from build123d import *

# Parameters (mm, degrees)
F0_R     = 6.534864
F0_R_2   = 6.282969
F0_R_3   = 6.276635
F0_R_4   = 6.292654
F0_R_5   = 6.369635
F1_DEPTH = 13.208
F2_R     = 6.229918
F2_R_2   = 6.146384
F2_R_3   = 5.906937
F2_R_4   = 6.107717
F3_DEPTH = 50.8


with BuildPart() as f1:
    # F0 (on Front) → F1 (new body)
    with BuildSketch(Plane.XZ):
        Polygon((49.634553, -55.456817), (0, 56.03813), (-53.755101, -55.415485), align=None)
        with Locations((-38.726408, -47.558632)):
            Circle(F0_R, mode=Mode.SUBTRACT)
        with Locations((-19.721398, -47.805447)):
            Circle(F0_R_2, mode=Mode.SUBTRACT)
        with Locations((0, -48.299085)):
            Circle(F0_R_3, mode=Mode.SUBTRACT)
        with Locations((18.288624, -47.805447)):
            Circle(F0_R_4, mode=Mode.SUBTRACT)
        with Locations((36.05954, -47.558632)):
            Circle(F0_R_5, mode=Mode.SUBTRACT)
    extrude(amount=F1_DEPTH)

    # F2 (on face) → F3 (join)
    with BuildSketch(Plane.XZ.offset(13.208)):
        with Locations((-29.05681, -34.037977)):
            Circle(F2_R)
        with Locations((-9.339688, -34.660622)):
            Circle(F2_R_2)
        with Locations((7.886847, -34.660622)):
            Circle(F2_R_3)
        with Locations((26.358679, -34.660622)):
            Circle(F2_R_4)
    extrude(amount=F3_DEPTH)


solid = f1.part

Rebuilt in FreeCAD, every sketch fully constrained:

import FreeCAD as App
import Part
import Sketcher
Q = App.Units.Quantity


def add_polygon(sketch, points):
    """Adds a closed chain of lines whose ends are joined by coincident constraints."""
    first, n = sketch.GeometryCount, len(points)
    for a, b in zip(points, points[1:] + points[:1]):
        sketch.addGeometry(Part.LineSegment(App.Vector(*a, 0), App.Vector(*b, 0)), False)
    for i in range(n):
        sketch.addConstraint(Sketcher.Constraint("Coincident", first + i, 2, first + (i + 1) % n, 1))

doc = App.newDocument("Part")
body = doc.addObject("PartDesign::Body", "Body")

# Sketch on XZ plane
sketch1 = body.newObject("Sketcher::SketchObject", "Sketch")
sketch1.AttachmentSupport = (doc.getObject("XZ_Plane"), [""])
sketch1.MapMode = "FlatFace"
add_polygon(sketch1, [(50, -55), (0, 56), (-54, -55)])  # lines 0-2
sketch1.addGeometry(Part.Circle(App.Vector(-20, -48, 0), App.Vector(0, 0, 1), 6), False)  # 3
sketch1.addGeometry(Part.Circle(App.Vector(0, -48, 0), App.Vector(0, 0, 1), 6), False)  # 4
sketch1.addGeometry(Part.Circle(App.Vector(18, -48, 0), App.Vector(0, 0, 1), 6), False)  # 5
sketch1.addGeometry(Part.Circle(App.Vector(-39, -48, 0), App.Vector(0, 0, 1), 7), False)  # 6
sketch1.addGeometry(Part.Circle(App.Vector(36, -48, 0), App.Vector(0, 0, 1), 6), False)  # 7
sketch1.addConstraint(Sketcher.Constraint("PointOnObject", 4, 3, -2))
sketch1.addConstraint(Sketcher.Constraint("PointOnObject", 0, 2, -2))
sketch1.addConstraint(Sketcher.Constraint("Horizontal", 3, 3, 5, 3))
sketch1.addConstraint(Sketcher.Constraint("Horizontal", 6, 3, 7, 3))
sketch1.addConstraint(Sketcher.Constraint("Diameter", 4, 12.55327))
sketch1.addConstraint(Sketcher.Constraint("Diameter", 7, 12.73927))
sketch1.addConstraint(Sketcher.Constraint("Diameter", 3, 12.565938))
sketch1.addConstraint(Sketcher.Constraint("Diameter", 5, 12.585308))
sketch1.addConstraint(Sketcher.Constraint("Diameter", 6, 13.069728))
sketch1.addConstraint(Sketcher.Constraint("DistanceX", 3, 3, 7, 3, Q("2.1960999 in")))
sketch1.addConstraint(Sketcher.Constraint("DistanceX", 3, 3, -1, 1, 19.721398))
sketch1.addConstraint(Sketcher.Constraint("DistanceX", 1, 2, -1, 1, 53.755101))
sketch1.addConstraint(Sketcher.Constraint("DistanceY", 1, 2, 4, 3, 7.1164))
sketch1.addConstraint(Sketcher.Constraint("DistanceY", -1, 1, 0, 2, 56.03813))
sketch1.addConstraint(Sketcher.Constraint("DistanceX", 6, 3, 3, 3, 19.00501))
sketch1.addConstraint(Sketcher.Constraint("DistanceX", 6, 3, 5, 3, 57.015032))
sketch1.addConstraint(Sketcher.Constraint("DistanceX", 5, 3, 2, 2, 31.345929))
sketch1.addConstraint(Sketcher.Constraint("DistanceY", 2, 2, 5, 3, 7.65137))
sketch1.addConstraint(Sketcher.Constraint("Distance", 0, 122.043894))
sketch1.addConstraint(Sketcher.Constraint("Distance", 1, 123.739724))
sketch1.addConstraint(Sketcher.Constraint("DistanceY", 6, 3, -1, 1, 47.558632))
pad1 = body.newObject("PartDesign::Pad", "Pad")
pad1.Profile = sketch1
pad1.Length = Q("0.52 in")

# Sketch on XZ plane
sketch2 = body.newObject("Sketcher::SketchObject", "Sketch001")
sketch2.AttachmentSupport = (doc.getObject("XZ_Plane"), [""])
sketch2.MapMode = "FlatFace"
sketch2.AttachmentOffset = App.Placement(App.Vector(0, 0, 0.52 * 25.4), App.Rotation())
sketch2.addGeometry(Part.Circle(App.Vector(-29, -34, 0), App.Vector(0, 0, 1), 6), False)
sketch2.addGeometry(Part.Circle(App.Vector(-9, -35, 0), App.Vector(0, 0, 1), 6), False)
sketch2.addGeometry(Part.Circle(App.Vector(8, -35, 0), App.Vector(0, 0, 1), 6), False)
sketch2.addGeometry(Part.Circle(App.Vector(26, -35, 0), App.Vector(0, 0, 1), 6), False)
sketch2.addConstraint(Sketcher.Constraint("Horizontal", 1, 3, 2, 3))
sketch2.addConstraint(Sketcher.Constraint("Horizontal", 2, 3, 3, 3))
sketch2.addConstraint(Sketcher.Constraint("Diameter", 0, 12.459836))
sketch2.addConstraint(Sketcher.Constraint("Diameter", 1, 12.292768))
sketch2.addConstraint(Sketcher.Constraint("Diameter", 2, 11.813874))
sketch2.addConstraint(Sketcher.Constraint("Diameter", 3, 12.215434))
sketch2.addConstraint(Sketcher.Constraint("DistanceX", 0, 3, -1, 1, 29.05681))
sketch2.addConstraint(Sketcher.Constraint("DistanceX", 1, 3, -1, 1, 9.339688))
sketch2.addConstraint(Sketcher.Constraint("DistanceY", 1, 3, -1, 1, 34.660622))
sketch2.addConstraint(Sketcher.Constraint("DistanceX", -1, 1, 3, 3, 26.358679))
sketch2.addConstraint(Sketcher.Constraint("DistanceX", 2, 3, 3, 3, 18.471832))
sketch2.addConstraint(Sketcher.Constraint("DistanceY", 0, 3, -1, 1, 34.037977))
pad2 = body.newObject("PartDesign::Pad", "Pad001")
pad2.Profile = sketch2
pad2.Length = Q("2 in")

doc.recompute()
